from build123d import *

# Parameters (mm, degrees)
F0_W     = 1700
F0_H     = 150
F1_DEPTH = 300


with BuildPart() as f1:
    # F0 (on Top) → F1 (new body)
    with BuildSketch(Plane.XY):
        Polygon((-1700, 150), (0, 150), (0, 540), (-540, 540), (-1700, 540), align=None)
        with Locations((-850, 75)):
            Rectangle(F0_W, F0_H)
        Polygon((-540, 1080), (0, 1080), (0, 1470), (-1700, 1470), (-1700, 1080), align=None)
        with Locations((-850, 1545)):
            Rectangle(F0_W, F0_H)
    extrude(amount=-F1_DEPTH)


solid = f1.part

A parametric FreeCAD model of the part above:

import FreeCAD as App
import Part
import Sketcher
Q = App.Units.Quantity

doc = App.newDocument("Part")
body = doc.addObject("PartDesign::Body", "Body")
body.AllowCompound = True

sketch1 = doc.addObject("Sketcher::SketchObject", "Sketch")
body.addObject(sketch1)
sketch1.AttachmentSupport = (doc.XY_Plane, [""])
sketch1.MapMode = "FlatFace"
sketch1.addGeometry([
    Part.LineSegment(App.Vector(0, 540, 0), App.Vector(-1700, 540, 0)),
    Part.LineSegment(App.Vector(-1700, 540, 0), App.Vector(-1700, 0, 0)),
    Part.LineSegment(App.Vector(-1700, 0, 0), App.Vector(0, 0, 0)),
    Part.LineSegment(App.Vector(0, 0, 0), App.Vector(0, 540, 0)),
    Part.LineSegment(App.Vector(0, 1080, 0), App.Vector(0, 1620, 0)),
    Part.LineSegment(App.Vector(0, 1620, 0), App.Vector(-1700, 1620, 0)),
    Part.LineSegment(App.Vector(-1700, 1620, 0), App.Vector(-1700, 1080, 0)),
    Part.LineSegment(App.Vector(-1700, 1080, 0), App.Vector(0, 1080, 0)),
], False)
sketch1.addConstraint([
    Sketcher.Constraint("Coincident", 0, 2, 1, 1),
    Sketcher.Constraint("Coincident", 1, 2, 2, 1),
    Sketcher.Constraint("Coincident", 2, 2, 3, 1),
    Sketcher.Constraint("Coincident", 3, 2, 0, 1),
    Sketcher.Constraint("Coincident", 4, 2, 5, 1),
    Sketcher.Constraint("Coincident", 5, 2, 6, 1),
    Sketcher.Constraint("Coincident", 6, 2, 7, 1),
    Sketcher.Constraint("Coincident", 7, 2, 4, 1),
    Sketcher.Constraint("Horizontal", 0),
    Sketcher.Constraint("Vertical", 1),
    Sketcher.Constraint("Horizontal", 2),
    Sketcher.Constraint("Vertical", 3),
    Sketcher.Constraint("Vertical", 4),
    Sketcher.Constraint("Horizontal", 5),
    Sketcher.Constraint("Vertical", 6),
    Sketcher.Constraint("Horizontal", 7),
    Sketcher.Constraint("Coincident", 2, 2, -1, 1),
    Sketcher.Constraint("PointOnObject", 4, 2, -2),
    Sketcher.Constraint("Vertical", 1, 2, 5, 2),
    Sketcher.Constraint("Equal", 3, 4),
    Sketcher.Constraint("DistanceX", 0, 2, 0, 1, Q("1700 mm")),
    Sketcher.Constraint("DistanceY", 1, 2, 1, 1, Q("540 mm")),
    Sketcher.Constraint("DistanceY", -1, 1, 4, 2, Q("1620 mm")),
])
pad1 = doc.addObject("PartDesign::Pad", "Pad")
body.addObject(pad1)
pad1.Profile = sketch1
pad1.Length = 300
pad1.Reversed = True

doc.recompute()
